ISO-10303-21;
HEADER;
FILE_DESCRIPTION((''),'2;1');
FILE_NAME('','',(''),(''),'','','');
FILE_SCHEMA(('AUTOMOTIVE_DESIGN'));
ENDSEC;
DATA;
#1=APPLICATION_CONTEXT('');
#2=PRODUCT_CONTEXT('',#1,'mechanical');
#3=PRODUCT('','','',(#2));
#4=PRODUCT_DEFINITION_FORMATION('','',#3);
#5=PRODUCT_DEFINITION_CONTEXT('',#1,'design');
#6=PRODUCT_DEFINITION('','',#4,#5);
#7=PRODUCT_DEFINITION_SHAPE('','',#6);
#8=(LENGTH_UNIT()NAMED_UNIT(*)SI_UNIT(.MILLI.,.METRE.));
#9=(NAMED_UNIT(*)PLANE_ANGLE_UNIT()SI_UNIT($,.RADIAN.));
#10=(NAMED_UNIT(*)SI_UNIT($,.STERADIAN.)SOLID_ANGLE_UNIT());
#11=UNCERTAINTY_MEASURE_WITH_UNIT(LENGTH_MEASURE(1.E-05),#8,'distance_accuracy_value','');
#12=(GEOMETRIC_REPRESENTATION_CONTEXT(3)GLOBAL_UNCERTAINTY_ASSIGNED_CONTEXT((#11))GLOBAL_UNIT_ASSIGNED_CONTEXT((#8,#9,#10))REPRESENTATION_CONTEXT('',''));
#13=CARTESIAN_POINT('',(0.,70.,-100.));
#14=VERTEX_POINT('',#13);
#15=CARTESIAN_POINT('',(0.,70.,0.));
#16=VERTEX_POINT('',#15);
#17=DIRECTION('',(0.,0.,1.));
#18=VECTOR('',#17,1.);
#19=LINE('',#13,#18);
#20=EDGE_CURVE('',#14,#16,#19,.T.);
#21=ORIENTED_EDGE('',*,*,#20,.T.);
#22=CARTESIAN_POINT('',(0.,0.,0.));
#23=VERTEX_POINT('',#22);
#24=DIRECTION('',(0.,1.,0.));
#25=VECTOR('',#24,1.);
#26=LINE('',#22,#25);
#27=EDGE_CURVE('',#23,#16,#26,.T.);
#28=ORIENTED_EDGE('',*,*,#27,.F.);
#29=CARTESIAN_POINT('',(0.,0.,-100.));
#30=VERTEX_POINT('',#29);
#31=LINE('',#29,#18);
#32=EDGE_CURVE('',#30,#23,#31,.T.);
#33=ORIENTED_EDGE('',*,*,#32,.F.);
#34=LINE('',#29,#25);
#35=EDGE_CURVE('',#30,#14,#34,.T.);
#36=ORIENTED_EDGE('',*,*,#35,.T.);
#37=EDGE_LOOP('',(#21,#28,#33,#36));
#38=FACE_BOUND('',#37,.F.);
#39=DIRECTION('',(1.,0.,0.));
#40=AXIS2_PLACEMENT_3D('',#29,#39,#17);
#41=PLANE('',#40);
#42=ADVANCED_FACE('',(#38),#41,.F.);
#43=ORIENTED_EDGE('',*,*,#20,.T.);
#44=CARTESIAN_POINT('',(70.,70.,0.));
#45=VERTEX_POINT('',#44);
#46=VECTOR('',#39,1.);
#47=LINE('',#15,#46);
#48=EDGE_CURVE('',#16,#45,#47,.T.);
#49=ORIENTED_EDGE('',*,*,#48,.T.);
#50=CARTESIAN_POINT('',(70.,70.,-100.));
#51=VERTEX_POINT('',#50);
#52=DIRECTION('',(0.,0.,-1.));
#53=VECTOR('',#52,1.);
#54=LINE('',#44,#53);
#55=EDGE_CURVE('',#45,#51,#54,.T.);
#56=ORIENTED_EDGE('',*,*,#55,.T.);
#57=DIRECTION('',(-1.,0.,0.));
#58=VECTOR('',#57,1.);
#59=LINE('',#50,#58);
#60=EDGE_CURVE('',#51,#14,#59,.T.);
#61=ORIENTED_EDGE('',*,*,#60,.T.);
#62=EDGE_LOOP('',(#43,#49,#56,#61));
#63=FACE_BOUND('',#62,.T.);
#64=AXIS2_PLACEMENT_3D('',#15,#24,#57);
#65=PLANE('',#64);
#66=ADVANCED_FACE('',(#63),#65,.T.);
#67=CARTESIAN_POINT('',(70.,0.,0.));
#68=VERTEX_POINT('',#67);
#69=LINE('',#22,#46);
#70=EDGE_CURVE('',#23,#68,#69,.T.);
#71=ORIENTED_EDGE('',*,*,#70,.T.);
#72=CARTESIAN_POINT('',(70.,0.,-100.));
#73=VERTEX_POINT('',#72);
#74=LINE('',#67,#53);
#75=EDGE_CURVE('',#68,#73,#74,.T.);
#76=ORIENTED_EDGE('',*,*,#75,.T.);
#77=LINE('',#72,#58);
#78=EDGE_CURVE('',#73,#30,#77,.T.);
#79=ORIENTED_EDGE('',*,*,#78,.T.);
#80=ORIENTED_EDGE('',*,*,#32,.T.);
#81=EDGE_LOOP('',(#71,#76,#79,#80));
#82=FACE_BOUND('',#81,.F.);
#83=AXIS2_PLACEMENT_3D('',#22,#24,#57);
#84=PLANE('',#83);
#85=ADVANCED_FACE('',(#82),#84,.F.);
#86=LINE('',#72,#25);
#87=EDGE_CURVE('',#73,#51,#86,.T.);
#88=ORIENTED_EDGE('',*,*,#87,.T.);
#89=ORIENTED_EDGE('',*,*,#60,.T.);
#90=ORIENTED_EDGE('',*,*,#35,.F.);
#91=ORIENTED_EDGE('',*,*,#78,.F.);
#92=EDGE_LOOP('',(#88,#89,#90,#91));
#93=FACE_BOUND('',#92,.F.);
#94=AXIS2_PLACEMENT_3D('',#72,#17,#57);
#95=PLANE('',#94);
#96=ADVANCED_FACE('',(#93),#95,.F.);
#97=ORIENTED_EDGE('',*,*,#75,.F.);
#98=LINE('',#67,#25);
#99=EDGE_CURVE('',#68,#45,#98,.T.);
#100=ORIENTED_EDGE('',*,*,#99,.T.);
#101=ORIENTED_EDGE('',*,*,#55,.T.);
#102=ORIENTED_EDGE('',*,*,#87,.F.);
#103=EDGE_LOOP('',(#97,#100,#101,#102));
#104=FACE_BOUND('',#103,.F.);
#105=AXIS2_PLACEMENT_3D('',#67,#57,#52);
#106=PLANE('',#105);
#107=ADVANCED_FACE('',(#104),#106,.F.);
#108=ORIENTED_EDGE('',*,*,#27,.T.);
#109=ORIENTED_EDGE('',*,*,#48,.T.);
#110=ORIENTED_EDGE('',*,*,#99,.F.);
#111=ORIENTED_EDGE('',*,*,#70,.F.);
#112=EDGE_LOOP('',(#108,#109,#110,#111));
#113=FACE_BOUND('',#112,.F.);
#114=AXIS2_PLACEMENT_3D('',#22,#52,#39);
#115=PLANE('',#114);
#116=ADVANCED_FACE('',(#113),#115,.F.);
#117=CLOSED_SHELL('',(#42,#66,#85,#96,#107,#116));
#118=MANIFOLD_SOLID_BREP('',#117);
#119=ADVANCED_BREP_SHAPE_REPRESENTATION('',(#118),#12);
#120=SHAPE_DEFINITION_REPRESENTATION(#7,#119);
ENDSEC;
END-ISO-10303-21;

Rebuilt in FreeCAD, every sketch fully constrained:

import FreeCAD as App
import Part
import Sketcher

V = App.Vector
Q = App.Units.Quantity

doc = App.newDocument("Part")
body = doc.addObject("PartDesign::Body", "Body")

# Sketch on XZ plane
sketch1 = doc.addObject("Sketcher::SketchObject", "Sketch")
body.addObject(sketch1)
sketch1.AttachmentSupport = (doc.XZ_Plane, [""])
sketch1.MapMode = "FlatFace"
sketch1.addGeometry([
    Part.LineSegment(V(0, -100, 0), V(0, 0, 0)),
    Part.LineSegment(V(0, 0, 0), V(70, 0, 0)),
    Part.LineSegment(V(70, 0, 0), V(70, -100, 0)),
    Part.LineSegment(V(70, -100, 0), V(0, -100, 0)),
], False)
sketch1.addConstraint([
    Sketcher.Constraint("Coincident", 0, 2, 1, 1),
    Sketcher.Constraint("Coincident", 1, 2, 2, 1),
    Sketcher.Constraint("Coincident", 2, 2, 3, 1),
    Sketcher.Constraint("Coincident", 3, 2, 0, 1),
    Sketcher.Constraint("Vertical", 0),
    Sketcher.Constraint("Horizontal", 1),
    Sketcher.Constraint("Vertical", 2),
    Sketcher.Constraint("Horizontal", 3),
    Sketcher.Constraint("Coincident", 0, 2, -1, 1),
    Sketcher.Constraint("DistanceY", 0, 1, 0, 2, Q("3.937 in")),
    Sketcher.Constraint("DistanceX", 1, 1, 1, 2, Q("2.7559 in")),
])
pad1 = doc.addObject("PartDesign::Pad", "Pad")
body.addObject(pad1)
pad1.Profile = sketch1
pad1.Length = Q("2.7559055 in")
pad1.Reversed = True

doc.recompute()
